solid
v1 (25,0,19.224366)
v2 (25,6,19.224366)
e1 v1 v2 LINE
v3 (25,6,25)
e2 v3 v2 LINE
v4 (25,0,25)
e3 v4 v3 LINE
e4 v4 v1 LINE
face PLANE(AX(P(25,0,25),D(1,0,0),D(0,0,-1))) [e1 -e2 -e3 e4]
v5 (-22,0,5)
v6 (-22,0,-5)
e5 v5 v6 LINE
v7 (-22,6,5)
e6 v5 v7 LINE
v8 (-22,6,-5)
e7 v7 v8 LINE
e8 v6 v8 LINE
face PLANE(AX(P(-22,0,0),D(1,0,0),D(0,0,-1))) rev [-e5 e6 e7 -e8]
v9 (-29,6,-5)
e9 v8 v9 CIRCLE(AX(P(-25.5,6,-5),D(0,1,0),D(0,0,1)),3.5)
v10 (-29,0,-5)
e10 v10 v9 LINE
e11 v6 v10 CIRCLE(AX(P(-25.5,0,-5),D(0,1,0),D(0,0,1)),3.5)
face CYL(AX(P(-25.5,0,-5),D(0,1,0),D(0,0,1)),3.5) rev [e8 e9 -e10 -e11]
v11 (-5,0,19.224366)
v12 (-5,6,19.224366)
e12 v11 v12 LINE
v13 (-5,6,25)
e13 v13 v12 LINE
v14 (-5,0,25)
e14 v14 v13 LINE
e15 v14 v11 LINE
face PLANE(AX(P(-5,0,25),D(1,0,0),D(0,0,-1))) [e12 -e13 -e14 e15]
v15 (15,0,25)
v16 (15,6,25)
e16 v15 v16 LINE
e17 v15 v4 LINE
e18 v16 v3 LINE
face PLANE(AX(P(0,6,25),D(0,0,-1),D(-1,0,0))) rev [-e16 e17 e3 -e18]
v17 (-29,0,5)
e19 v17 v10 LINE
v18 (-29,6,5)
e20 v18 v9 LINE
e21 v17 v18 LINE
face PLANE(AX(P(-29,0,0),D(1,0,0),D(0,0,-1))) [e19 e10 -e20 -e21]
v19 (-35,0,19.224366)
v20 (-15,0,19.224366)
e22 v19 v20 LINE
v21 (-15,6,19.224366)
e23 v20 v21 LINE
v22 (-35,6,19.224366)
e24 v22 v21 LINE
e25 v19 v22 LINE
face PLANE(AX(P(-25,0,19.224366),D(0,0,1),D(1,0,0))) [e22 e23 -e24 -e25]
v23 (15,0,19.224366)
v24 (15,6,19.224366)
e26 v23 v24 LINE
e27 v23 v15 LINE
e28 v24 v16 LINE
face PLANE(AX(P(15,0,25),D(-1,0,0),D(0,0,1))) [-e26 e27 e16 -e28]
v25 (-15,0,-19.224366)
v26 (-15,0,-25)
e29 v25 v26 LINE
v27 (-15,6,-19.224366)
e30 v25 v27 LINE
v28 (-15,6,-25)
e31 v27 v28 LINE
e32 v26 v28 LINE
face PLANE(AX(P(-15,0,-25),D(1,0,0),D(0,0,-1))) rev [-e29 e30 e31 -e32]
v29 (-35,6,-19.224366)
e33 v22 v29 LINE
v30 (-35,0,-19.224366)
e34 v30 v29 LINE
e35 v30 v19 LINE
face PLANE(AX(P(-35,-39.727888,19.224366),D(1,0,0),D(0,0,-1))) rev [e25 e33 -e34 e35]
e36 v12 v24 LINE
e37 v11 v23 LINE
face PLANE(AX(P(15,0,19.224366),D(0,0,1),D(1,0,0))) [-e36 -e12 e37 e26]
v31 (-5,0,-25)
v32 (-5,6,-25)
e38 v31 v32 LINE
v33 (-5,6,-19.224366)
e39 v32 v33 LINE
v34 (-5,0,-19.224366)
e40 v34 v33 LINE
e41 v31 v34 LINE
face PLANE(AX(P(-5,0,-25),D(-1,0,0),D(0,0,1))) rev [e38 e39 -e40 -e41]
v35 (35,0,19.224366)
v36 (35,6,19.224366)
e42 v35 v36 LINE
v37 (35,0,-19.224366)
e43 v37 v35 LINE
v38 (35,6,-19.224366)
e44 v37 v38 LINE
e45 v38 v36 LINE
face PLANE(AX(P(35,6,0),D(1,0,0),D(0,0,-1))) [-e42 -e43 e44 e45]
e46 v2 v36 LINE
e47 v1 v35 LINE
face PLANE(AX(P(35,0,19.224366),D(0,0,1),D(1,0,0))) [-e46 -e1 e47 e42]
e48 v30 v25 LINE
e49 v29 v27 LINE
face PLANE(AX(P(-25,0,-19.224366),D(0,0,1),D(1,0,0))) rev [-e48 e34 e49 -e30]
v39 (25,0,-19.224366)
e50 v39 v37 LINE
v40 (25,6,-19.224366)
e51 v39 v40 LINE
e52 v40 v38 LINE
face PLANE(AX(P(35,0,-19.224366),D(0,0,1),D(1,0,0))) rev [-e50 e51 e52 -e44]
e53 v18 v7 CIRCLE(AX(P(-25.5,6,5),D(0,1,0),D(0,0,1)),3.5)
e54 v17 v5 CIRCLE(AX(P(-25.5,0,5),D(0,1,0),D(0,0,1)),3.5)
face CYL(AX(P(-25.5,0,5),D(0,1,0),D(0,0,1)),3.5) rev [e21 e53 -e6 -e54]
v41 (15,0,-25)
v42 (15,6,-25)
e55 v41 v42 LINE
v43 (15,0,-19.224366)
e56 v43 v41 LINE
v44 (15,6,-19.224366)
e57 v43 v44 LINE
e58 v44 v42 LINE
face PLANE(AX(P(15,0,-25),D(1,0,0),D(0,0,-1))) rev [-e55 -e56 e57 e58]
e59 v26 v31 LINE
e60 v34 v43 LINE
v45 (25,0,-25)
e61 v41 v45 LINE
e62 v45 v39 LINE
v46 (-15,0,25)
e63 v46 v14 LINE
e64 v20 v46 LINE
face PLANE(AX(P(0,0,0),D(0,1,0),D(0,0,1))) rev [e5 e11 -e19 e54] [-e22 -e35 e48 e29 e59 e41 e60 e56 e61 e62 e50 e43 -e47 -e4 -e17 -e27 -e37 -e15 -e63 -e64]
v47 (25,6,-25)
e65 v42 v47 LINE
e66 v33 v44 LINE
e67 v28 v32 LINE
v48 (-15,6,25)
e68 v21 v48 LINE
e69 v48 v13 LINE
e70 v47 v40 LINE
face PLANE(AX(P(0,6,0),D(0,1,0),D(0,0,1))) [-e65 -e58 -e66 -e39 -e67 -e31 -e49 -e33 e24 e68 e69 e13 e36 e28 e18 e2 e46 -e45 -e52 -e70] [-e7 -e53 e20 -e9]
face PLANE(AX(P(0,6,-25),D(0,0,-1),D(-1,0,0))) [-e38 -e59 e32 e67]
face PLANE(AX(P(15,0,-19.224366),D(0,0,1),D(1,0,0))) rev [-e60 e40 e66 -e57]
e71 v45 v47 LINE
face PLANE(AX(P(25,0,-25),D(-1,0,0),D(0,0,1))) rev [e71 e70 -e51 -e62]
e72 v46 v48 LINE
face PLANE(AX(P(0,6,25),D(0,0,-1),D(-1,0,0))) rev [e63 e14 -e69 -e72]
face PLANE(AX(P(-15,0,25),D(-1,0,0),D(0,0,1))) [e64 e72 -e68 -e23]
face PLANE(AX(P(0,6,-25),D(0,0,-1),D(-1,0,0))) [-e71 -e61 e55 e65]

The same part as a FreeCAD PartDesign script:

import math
import FreeCAD as App
import Part
import Sketcher
Q = App.Units.Quantity


def add_polygon(sketch, points):
    """Adds a closed chain of lines whose ends are joined by coincident constraints."""
    first, n = sketch.GeometryCount, len(points)
    for a, b in zip(points, points[1:] + points[:1]):
        sketch.addGeometry(Part.LineSegment(App.Vector(*a, 0), App.Vector(*b, 0)), False)
    for i in range(n):
        sketch.addConstraint(Sketcher.Constraint("Coincident", first + i, 2, first + (i + 1) % n, 1))

doc = App.newDocument("Part")
body = doc.addObject("PartDesign::Body", "Body")

sketch1 = body.newObject("Sketcher::SketchObject", "Sketch")
sketch1.AttachmentSupport = (doc.getObject("XZ_Plane"), [""])
sketch1.MapMode = "FlatFace"
add_polygon(sketch1, [(-25, -25), (-25, 25), (35, 25), (35, -25)])
sketch1.addConstraint(Sketcher.Constraint("Vertical", 0))
sketch1.addConstraint(Sketcher.Constraint("Horizontal", 1))
sketch1.addConstraint(Sketcher.Constraint("Vertical", 2))
sketch1.addConstraint(Sketcher.Constraint("Horizontal", 3))
sketch1.addConstraint(Sketcher.Constraint("DistanceX", 1, 1, 1, 2, Q("60 mm")))
sketch1.addConstraint(Sketcher.Constraint("DistanceY", 0, 1, 0, 2, Q("50 mm")))
sketch1.addConstraint(Sketcher.Constraint("DistanceX", 0, 2, -1, 1, Q("25 mm")))
sketch1.addConstraint(Sketcher.Constraint("DistanceY", -1, 1, 0, 2, Q("25 mm")))
pad1 = body.newObject("PartDesign::Pad", "Pad")
pad1.Profile = sketch1
pad1.Length = 6
pad1.Reversed = True

sketch2 = body.newObject("Sketcher::SketchObject", "Sketch001")
sketch2.AttachmentSupport = (doc.getObject("XZ_Plane"), [""])
sketch2.MapMode = "FlatFace"
sketch2.AttachmentOffset = App.Placement(App.Vector(0, 0, -6), App.Rotation())
add_polygon(sketch2, [(25, -25), (25, -19), (35, -19), (35, -25)])
add_polygon(sketch2, [(-5, -25), (-5, -19), (15, -19), (15, -25)])
add_polygon(sketch2, [(-25, -25), (-25, -19), (-15, -19), (-15, -25)])
sketch2.addConstraint(Sketcher.Constraint("Vertical", 0))
sketch2.addConstraint(Sketcher.Constraint("Horizontal", 1))
sketch2.addConstraint(Sketcher.Constraint("Vertical", 2))
sketch2.addConstraint(Sketcher.Constraint("Horizontal", 3))
sketch2.addConstraint(Sketcher.Constraint("Vertical", 4))
sketch2.addConstraint(Sketcher.Constraint("Horizontal", 5))
sketch2.addConstraint(Sketcher.Constraint("Vertical", 6))
sketch2.addConstraint(Sketcher.Constraint("Horizontal", 7))
sketch2.addConstraint(Sketcher.Constraint("Vertical", 8))
sketch2.addConstraint(Sketcher.Constraint("Horizontal", 9))
sketch2.addConstraint(Sketcher.Constraint("Vertical", 10))
sketch2.addConstraint(Sketcher.Constraint("Horizontal", 11))
sketch2.addConstraint(Sketcher.Constraint("Symmetric", 0, 2, 8, 2, -2))
sketch2.addConstraint(Sketcher.Constraint("Symmetric", 5, 2, 9, 2, -2))
sketch2.addConstraint(Sketcher.Constraint("Horizontal", 3, 2, 6, 2))
sketch2.addConstraint(Sketcher.Constraint("Horizontal", 7, 2, 10, 2))
sketch2.addConstraint(Sketcher.Constraint("Equal", 3, 9))
sketch2.addConstraint(Sketcher.Constraint("DistanceX", 1, 1, 1, 2, Q("10 mm")))
sketch2.addConstraint(Sketcher.Constraint("DistanceX", 5, 1, 5, 2, Q("20 mm")))
sketch2.addConstraint(Sketcher.Constraint("DistanceX", -1, 1, 0, 2, Q("25 mm")))
sketch2.addConstraint(Sketcher.Constraint("DistanceY", 2, 2, -1, 1, Q("25 mm")))
sketch2.addConstraint(Sketcher.Constraint("DistanceY", 0, 1, 0, 2, Q("5.775634 mm")))
pocket1 = body.newObject("PartDesign::Pocket", "Pocket")
pocket1.Profile = sketch2
pocket1.Type = "ThroughAll"
pocket1.Reversed = True
doc.recompute()

mirrored = body.newObject("PartDesign::Mirrored", "Mirrored")
mirrored.Originals = [pocket1]
mirrored.MirrorPlane = (doc.getObject("XY_Plane"), [""])
body.Tip = mirrored

sketch3 = body.newObject("Sketcher::SketchObject", "Sketch002")
sketch3.AttachmentSupport = (doc.getObject("XZ_Plane"), [""])
sketch3.MapMode = "FlatFace"
sketch3.AttachmentOffset = App.Placement(App.Vector(0, 0, -6), App.Rotation())
add_polygon(sketch3, [(-35, -19), (-35, 19), (-25, 19), (-25, -19)])
sketch3.addConstraint(Sketcher.Constraint("Vertical", 0))
sketch3.addConstraint(Sketcher.Constraint("Horizontal", 1))
sketch3.addConstraint(Sketcher.Constraint("Vertical", 2))
sketch3.addConstraint(Sketcher.Constraint("Horizontal", 3))
sketch3.addConstraint(Sketcher.Constraint("DistanceX", 1, 1, 1, 2, Q("10 mm")))
sketch3.addConstraint(Sketcher.Constraint("DistanceX", 0, 2, -1, 1, Q("35 mm")))
sketch3.addConstraint(Sketcher.Constraint("DistanceY", 0, 1, 0, 2, Q("38.448733 mm")))
sketch3.addConstraint(Sketcher.Constraint("DistanceY", -1, 1, 0, 2, Q("19.224366 mm")))
pad2 = body.newObject("PartDesign::Pad", "Pad001")
pad2.Profile = sketch3
pad2.Length = 6

sketch4 = body.newObject("Sketcher::SketchObject", "Sketch003")
sketch4.AttachmentSupport = (doc.getObject("XZ_Plane"), [""])
sketch4.MapMode = "FlatFace"
sketch4.AttachmentOffset = App.Placement(App.Vector(0, 0, -6), App.Rotation())
sketch4.addGeometry(Part.LineSegment(App.Vector(-22, 5, 0), App.Vector(-22, -5, 0)), False)
sketch4.addGeometry(Part.ArcOfCircle(Part.Circle(App.Vector(-25.5, -5, 0), App.Vector(0, 0, 1), 3.5), math.radians(180), math.radians(360)), False)
sketch4.addGeometry(Part.LineSegment(App.Vector(-29, -5, 0), App.Vector(-29, 5, 0)), False)
sketch4.addGeometry(Part.ArcOfCircle(Part.Circle(App.Vector(-25.5, 5, 0), App.Vector(0, 0, 1), 3.5), math.radians(0), math.radians(180)), False)
sketch4.addConstraint(Sketcher.Constraint("Tangent", 0, 2, 1, 2))
sketch4.addConstraint(Sketcher.Constraint("Tangent", 1, 1, 2, 1))
sketch4.addConstraint(Sketcher.Constraint("Tangent", 2, 2, 3, 2))
sketch4.addConstraint(Sketcher.Constraint("Tangent", 3, 1, 0, 1))
sketch4.addConstraint(Sketcher.Constraint("Vertical", 0))
sketch4.addConstraint(Sketcher.Constraint("Vertical", 2))
sketch4.addConstraint(Sketcher.Constraint("Radius", 1, Q("3.5 mm")))
sketch4.addConstraint(Sketcher.Constraint("DistanceY", 0, 2, 0, 1, Q("10 mm")))
sketch4.addConstraint(Sketcher.Constraint("DistanceY", 1, 3, -1, 1, Q("5 mm")))
sketch4.addConstraint(Sketcher.Constraint("DistanceX", 0, 2, -1, 1, Q("22 mm")))
pocket2 = body.newObject("PartDesign::Pocket", "Pocket001")
pocket2.Profile = sketch4
pocket2.Type = "ThroughAll"
pocket2.Reversed = True

doc.recompute()
